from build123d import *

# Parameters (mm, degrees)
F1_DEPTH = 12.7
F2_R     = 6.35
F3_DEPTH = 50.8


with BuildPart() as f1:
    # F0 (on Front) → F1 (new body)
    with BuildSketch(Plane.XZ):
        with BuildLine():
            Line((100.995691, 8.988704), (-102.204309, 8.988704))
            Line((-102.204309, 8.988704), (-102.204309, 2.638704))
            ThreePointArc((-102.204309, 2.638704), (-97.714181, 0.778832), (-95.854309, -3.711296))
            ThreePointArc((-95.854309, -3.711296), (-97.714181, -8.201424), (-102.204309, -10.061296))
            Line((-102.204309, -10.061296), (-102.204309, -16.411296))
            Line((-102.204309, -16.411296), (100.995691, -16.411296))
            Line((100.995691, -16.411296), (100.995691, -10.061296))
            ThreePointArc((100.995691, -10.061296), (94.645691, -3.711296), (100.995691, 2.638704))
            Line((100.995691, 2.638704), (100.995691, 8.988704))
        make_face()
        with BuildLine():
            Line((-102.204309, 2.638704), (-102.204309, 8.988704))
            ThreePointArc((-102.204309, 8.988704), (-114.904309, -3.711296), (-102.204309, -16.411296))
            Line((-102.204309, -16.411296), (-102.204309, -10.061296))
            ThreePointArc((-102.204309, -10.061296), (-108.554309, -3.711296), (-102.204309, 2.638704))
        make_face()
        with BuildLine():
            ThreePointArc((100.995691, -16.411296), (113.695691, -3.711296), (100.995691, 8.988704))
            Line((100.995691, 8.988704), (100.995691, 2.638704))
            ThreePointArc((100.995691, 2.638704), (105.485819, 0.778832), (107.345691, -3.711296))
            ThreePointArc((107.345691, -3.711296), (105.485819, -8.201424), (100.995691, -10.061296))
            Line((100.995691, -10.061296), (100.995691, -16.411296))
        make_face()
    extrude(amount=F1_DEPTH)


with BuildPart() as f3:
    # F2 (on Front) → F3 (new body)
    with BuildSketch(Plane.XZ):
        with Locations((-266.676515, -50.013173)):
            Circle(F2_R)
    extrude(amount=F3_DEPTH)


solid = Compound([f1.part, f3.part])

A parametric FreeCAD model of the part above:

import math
import FreeCAD as App
import Part
import Sketcher
from FreeCAD import Vector
Q = App.Units.Quantity

doc = App.newDocument("Part")
body = doc.addObject("PartDesign::Body", "Body")

sketch1 = body.newObject("Sketcher::SketchObject", "Sketch")
sketch1.AttachmentSupport = (doc.getObject("XZ_Plane"), [""])
sketch1.MapMode = "FlatFace"
sketch1.addGeometry([
    Part.LineSegment(Vector(101, 9, 0), Vector(-102, 9, 0)),
    Part.ArcOfCircle(Part.Circle(Vector(-102, -4, 0), Vector(0, 0, 1), 13), math.radians(90), math.radians(270)),
    Part.LineSegment(Vector(-102, -16, 0), Vector(101, -16, 0)),
    Part.ArcOfCircle(Part.Circle(Vector(101, -4, 0), Vector(0, 0, 1), 13), math.radians(-90), math.radians(90)),
    Part.ArcOfCircle(Part.Circle(Vector(101, -4, 0), Vector(0, 0, 1), 6), math.radians(90), math.radians(270)),
    Part.ArcOfCircle(Part.Circle(Vector(101, -4, 0), Vector(0, 0, 1), 6), math.radians(0), math.radians(90)),
    Part.ArcOfCircle(Part.Circle(Vector(101, -4, 0), Vector(0, 0, 1), 6), math.radians(-90), math.radians(0)),
    Part.ArcOfCircle(Part.Circle(Vector(-102, -4, 0), Vector(0, 0, 1), 6), math.radians(0), math.radians(90)),
    Part.ArcOfCircle(Part.Circle(Vector(-102, -4, 0), Vector(0, 0, 1), 6), math.radians(-90), math.radians(0)),
    Part.ArcOfCircle(Part.Circle(Vector(-102, -4, 0), Vector(0, 0, 1), 6), math.radians(90), math.radians(270)),
], False)
sketch1.addConstraint([
    Sketcher.Constraint("Tangent", 0, 2, 1, 1),
    Sketcher.Constraint("Tangent", 1, 2, 2, 1),
    Sketcher.Constraint("Tangent", 2, 2, 3, 1),
    Sketcher.Constraint("Tangent", 3, 2, 0, 1),
    Sketcher.Constraint("Tangent", 4, 1, 5, 2),
    Sketcher.Constraint("Tangent", 5, 1, 6, 2),
    Sketcher.Constraint("Tangent", 6, 1, 4, 2),
    Sketcher.Constraint("Tangent", 7, 1, 8, 2),
    Sketcher.Constraint("Tangent", 8, 1, 9, 2),
    Sketcher.Constraint("Tangent", 9, 1, 7, 2),
    Sketcher.Constraint("Horizontal", 0),
    Sketcher.Constraint("Horizontal", 2),
    Sketcher.Constraint("Coincident", 4, 3, 3, 3),
    Sketcher.Constraint("Coincident", 7, 3, 1, 3),
    Sketcher.Constraint("Equal", 6, 7),
    Sketcher.Constraint("Horizontal", 9, 3, 5, 1),
    Sketcher.Constraint("Horizontal", 5, 1, 7, 1),
    Sketcher.Constraint("Vertical", 3, 2, 4, 1),
    Sketcher.Constraint("Vertical", 4, 1, 6, 1),
    Sketcher.Constraint("Vertical", 1, 2, 8, 1),
    Sketcher.Constraint("Vertical", 8, 1, 9, 1),
    Sketcher.Constraint("Radius", 1, Q("0.5 in")),
    Sketcher.Constraint("DistanceX", 0, 2, 0, 1, Q("8 in")),
    Sketcher.Constraint("Radius", 4, Q("0.25 in")),
    Sketcher.Constraint("DistanceX", 1, 3, -1, 1, 102.204309),
    Sketcher.Constraint("DistanceY", 1, 3, -1, 1, 3.711296),
])
pad1 = body.newObject("PartDesign::Pad", "Pad")
pad1.Profile = sketch1
pad1.Length = Q("0.5 in")
body2 = doc.addObject("PartDesign::Body", "Body001")

sketch2 = body2.newObject("Sketcher::SketchObject", "Sketch001")
sketch2.AttachmentSupport = (doc.getObject("XZ_Plane001"), [""])
sketch2.MapMode = "FlatFace"
sketch2.addGeometry(Part.Circle(Vector(-267, -50, 0), Vector(0, 0, 1), 6), False)
sketch2.addConstraint([
    Sketcher.Constraint("Diameter", 0, Q("0.5 in")),
    Sketcher.Constraint("DistanceX", 0, 3, -1, 1, 266.676515),
    Sketcher.Constraint("DistanceY", 0, 3, -1, 1, 50.013173),
])
pad2 = body2.newObject("PartDesign::Pad", "Pad001")
pad2.Profile = sketch2
pad2.Length = Q("2 in")

doc.recompute()
